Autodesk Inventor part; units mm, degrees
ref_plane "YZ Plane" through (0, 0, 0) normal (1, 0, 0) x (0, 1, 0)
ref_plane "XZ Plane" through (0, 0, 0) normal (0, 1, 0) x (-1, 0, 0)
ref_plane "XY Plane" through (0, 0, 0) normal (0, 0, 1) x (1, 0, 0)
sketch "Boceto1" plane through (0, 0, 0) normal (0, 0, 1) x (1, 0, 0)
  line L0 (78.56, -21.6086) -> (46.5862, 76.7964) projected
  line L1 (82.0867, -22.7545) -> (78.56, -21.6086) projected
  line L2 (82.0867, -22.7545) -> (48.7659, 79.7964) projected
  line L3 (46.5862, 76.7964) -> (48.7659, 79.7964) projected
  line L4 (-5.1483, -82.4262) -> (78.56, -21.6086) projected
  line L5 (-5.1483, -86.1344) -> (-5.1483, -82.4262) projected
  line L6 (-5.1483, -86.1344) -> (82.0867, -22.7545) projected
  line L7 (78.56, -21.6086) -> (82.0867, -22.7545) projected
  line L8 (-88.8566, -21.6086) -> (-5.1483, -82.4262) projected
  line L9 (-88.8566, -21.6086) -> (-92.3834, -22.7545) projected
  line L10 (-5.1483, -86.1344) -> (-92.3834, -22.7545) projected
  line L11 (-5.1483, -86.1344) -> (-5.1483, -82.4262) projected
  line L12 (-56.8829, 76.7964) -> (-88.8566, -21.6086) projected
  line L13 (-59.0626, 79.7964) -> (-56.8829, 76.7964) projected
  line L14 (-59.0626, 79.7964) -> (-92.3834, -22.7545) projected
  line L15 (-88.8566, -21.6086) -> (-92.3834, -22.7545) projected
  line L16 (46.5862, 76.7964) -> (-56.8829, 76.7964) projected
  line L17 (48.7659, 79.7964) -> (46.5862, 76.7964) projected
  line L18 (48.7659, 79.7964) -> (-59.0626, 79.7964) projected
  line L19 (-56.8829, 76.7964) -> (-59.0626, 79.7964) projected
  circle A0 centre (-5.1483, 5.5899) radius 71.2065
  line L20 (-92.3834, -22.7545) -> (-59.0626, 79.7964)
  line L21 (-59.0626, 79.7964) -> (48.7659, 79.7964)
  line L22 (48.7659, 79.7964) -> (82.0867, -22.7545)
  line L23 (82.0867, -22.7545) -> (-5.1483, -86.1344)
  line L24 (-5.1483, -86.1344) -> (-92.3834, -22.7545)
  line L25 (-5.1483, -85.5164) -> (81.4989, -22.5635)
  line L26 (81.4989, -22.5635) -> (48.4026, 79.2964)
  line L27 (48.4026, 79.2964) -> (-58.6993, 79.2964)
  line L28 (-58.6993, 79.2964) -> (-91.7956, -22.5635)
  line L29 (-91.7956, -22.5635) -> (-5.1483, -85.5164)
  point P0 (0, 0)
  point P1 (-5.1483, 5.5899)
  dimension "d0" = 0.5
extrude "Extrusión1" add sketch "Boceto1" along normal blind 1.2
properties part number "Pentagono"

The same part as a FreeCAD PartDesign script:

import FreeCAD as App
import Part
import Sketcher

V = App.Vector
Q = App.Units.Quantity

doc = App.newDocument("Part")
body = doc.addObject("PartDesign::Body", "Body")

# Sketch on XY plane
sketch1 = body.newObject("Sketcher::SketchObject", "Sketch")
sketch1.AttachmentSupport = (doc.getObject("XY_Plane"), [""])
sketch1.MapMode = "FlatFace"
sketch1.addGeometry([
    Part.LineSegment(V(-5, -86, 0), V(82, -23, 0)),  # 0
    Part.LineSegment(V(82, -23, 0), V(49, 80, 0)),  # 1
    Part.LineSegment(V(49, 80, 0), V(-59, 80, 0)),  # 2
    Part.LineSegment(V(-59, 80, 0), V(-92, -23, 0)),  # 3
    Part.LineSegment(V(-92, -23, 0), V(-5, -86, 0)),  # 4
], False)
sketch1.addConstraint([
    Sketcher.Constraint("Coincident", 0, 2, 1, 1),
    Sketcher.Constraint("Coincident", 1, 2, 2, 1),
    Sketcher.Constraint("Coincident", 2, 2, 3, 1),
    Sketcher.Constraint("Coincident", 3, 2, 4, 1),
    Sketcher.Constraint("Coincident", 4, 2, 0, 1),
    Sketcher.Constraint("Horizontal", 2),
    Sketcher.Constraint("Horizontal", 0, 2, 3, 2),
    Sketcher.Constraint("Equal", 0, 1),
    Sketcher.Constraint("Equal", 1, 3),
    Sketcher.Constraint("Equal", 3, 4),
    Sketcher.Constraint("Angle", 0, Q("36 deg")),
    Sketcher.Constraint("Angle", 1, Q("108 deg")),
    Sketcher.Constraint("DistanceX", 3, 2, 0, 2, Q("174.47 mm")),
    Sketcher.Constraint("DistanceX", -1, 1, 1, 2, Q("48.766 mm")),
    Sketcher.Constraint("DistanceY", 0, 2, -1, 1, Q("22.7545 mm")),
])
pad1 = body.newObject("PartDesign::Pad", "Pad")
pad1.Profile = sketch1
pad1.Length = 1.2

doc.recompute()
